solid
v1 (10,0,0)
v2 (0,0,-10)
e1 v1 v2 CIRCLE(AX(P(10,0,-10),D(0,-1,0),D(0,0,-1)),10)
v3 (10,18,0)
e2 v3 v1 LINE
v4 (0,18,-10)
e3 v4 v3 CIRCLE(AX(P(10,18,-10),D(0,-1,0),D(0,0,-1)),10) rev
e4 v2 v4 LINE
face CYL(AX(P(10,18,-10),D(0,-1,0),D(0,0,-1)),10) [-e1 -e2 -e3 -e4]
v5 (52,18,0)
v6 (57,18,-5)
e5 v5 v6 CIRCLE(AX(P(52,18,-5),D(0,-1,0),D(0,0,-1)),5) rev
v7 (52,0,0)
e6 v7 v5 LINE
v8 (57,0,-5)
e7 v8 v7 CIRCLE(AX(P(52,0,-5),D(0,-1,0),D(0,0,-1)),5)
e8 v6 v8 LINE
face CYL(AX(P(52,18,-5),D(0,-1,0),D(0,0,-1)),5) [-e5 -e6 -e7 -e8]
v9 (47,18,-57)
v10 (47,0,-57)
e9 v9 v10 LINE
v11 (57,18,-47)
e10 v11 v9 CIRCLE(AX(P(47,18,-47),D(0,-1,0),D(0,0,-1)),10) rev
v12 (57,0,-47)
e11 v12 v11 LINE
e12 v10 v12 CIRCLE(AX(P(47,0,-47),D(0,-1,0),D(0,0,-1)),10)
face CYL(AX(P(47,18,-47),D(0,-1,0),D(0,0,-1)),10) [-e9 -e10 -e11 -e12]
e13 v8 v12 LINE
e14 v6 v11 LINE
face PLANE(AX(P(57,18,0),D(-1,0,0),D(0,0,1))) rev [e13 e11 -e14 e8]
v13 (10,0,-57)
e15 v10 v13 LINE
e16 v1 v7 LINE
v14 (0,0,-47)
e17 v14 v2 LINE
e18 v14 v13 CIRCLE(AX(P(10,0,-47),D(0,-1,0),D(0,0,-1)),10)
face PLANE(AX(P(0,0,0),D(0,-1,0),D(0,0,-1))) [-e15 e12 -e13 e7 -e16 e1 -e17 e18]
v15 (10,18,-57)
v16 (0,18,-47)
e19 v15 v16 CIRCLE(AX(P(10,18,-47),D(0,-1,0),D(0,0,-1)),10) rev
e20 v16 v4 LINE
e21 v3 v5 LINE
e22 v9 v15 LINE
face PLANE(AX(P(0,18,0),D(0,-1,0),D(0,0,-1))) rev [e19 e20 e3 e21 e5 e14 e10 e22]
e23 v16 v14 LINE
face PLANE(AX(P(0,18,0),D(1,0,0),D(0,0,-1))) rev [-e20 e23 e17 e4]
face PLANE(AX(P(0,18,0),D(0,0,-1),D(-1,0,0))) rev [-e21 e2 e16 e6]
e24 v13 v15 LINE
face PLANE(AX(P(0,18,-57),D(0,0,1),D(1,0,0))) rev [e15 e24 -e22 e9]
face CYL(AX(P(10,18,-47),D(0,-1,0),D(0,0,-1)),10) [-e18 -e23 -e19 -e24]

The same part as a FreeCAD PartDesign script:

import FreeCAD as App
import Part
import Sketcher

V = App.Vector


def edges_at(feature, points):
    """Names of the edges that pass closest to the given points."""
    edges = feature.Shape.Edges
    near = lambda p: min(range(len(edges)), key=lambda i: edges[i].distToShape(Part.Vertex(*p))[0])
    return sorted({f"Edge{near(p) + 1}" for p in points})

doc = App.newDocument("Part")
body = doc.addObject("PartDesign::Body", "Body")

# Sketch on XZ plane
sketch1 = body.newObject("Sketcher::SketchObject", "Sketch")
sketch1.AttachmentSupport = (doc.getObject("XZ_Plane"), [""])
sketch1.MapMode = "FlatFace"
sketch1.addGeometry(Part.LineSegment(V(0, -57, 0), V(0, 0, 0)), False)
sketch1.addGeometry(Part.LineSegment(V(0, 0, 0), V(57, 0, 0)), False)
sketch1.addGeometry(Part.LineSegment(V(57, 0, 0), V(57, -57, 0)), False)
sketch1.addGeometry(Part.LineSegment(V(57, -57, 0), V(0, -57, 0)), False)
sketch1.addConstraint(Sketcher.Constraint("Coincident", 0, 2, 1, 1))
sketch1.addConstraint(Sketcher.Constraint("Coincident", 1, 2, 2, 1))
sketch1.addConstraint(Sketcher.Constraint("Coincident", 2, 2, 3, 1))
sketch1.addConstraint(Sketcher.Constraint("Coincident", 3, 2, 0, 1))
sketch1.addConstraint(Sketcher.Constraint("Vertical", 0))
sketch1.addConstraint(Sketcher.Constraint("Horizontal", 1))
sketch1.addConstraint(Sketcher.Constraint("Vertical", 2))
sketch1.addConstraint(Sketcher.Constraint("Horizontal", 3))
sketch1.addConstraint(Sketcher.Constraint("Coincident", 0, 2, -1, 1))
sketch1.addConstraint(Sketcher.Constraint("Equal", 3, 0))
sketch1.addConstraint(Sketcher.Constraint("DistanceX", 1, 1, 1, 2, 57.0))
pad1 = body.newObject("PartDesign::Pad", "Pad")
pad1.Profile = sketch1
pad1.Length = 18
pad1.Reversed = True
doc.recompute()

fillet = body.newObject("PartDesign::Fillet", "Fillet")
fillet.Base = (pad1, edges_at(pad1, [(57, 9, 0)]))
fillet.Radius = 5
doc.recompute()

fillet2 = body.newObject("PartDesign::Fillet", "Fillet001")
fillet2.Base = (fillet, edges_at(fillet, [(0, 9, -57), (57, 9, -57), (0, 9, 0)]))
fillet2.Radius = 10

doc.recompute()
